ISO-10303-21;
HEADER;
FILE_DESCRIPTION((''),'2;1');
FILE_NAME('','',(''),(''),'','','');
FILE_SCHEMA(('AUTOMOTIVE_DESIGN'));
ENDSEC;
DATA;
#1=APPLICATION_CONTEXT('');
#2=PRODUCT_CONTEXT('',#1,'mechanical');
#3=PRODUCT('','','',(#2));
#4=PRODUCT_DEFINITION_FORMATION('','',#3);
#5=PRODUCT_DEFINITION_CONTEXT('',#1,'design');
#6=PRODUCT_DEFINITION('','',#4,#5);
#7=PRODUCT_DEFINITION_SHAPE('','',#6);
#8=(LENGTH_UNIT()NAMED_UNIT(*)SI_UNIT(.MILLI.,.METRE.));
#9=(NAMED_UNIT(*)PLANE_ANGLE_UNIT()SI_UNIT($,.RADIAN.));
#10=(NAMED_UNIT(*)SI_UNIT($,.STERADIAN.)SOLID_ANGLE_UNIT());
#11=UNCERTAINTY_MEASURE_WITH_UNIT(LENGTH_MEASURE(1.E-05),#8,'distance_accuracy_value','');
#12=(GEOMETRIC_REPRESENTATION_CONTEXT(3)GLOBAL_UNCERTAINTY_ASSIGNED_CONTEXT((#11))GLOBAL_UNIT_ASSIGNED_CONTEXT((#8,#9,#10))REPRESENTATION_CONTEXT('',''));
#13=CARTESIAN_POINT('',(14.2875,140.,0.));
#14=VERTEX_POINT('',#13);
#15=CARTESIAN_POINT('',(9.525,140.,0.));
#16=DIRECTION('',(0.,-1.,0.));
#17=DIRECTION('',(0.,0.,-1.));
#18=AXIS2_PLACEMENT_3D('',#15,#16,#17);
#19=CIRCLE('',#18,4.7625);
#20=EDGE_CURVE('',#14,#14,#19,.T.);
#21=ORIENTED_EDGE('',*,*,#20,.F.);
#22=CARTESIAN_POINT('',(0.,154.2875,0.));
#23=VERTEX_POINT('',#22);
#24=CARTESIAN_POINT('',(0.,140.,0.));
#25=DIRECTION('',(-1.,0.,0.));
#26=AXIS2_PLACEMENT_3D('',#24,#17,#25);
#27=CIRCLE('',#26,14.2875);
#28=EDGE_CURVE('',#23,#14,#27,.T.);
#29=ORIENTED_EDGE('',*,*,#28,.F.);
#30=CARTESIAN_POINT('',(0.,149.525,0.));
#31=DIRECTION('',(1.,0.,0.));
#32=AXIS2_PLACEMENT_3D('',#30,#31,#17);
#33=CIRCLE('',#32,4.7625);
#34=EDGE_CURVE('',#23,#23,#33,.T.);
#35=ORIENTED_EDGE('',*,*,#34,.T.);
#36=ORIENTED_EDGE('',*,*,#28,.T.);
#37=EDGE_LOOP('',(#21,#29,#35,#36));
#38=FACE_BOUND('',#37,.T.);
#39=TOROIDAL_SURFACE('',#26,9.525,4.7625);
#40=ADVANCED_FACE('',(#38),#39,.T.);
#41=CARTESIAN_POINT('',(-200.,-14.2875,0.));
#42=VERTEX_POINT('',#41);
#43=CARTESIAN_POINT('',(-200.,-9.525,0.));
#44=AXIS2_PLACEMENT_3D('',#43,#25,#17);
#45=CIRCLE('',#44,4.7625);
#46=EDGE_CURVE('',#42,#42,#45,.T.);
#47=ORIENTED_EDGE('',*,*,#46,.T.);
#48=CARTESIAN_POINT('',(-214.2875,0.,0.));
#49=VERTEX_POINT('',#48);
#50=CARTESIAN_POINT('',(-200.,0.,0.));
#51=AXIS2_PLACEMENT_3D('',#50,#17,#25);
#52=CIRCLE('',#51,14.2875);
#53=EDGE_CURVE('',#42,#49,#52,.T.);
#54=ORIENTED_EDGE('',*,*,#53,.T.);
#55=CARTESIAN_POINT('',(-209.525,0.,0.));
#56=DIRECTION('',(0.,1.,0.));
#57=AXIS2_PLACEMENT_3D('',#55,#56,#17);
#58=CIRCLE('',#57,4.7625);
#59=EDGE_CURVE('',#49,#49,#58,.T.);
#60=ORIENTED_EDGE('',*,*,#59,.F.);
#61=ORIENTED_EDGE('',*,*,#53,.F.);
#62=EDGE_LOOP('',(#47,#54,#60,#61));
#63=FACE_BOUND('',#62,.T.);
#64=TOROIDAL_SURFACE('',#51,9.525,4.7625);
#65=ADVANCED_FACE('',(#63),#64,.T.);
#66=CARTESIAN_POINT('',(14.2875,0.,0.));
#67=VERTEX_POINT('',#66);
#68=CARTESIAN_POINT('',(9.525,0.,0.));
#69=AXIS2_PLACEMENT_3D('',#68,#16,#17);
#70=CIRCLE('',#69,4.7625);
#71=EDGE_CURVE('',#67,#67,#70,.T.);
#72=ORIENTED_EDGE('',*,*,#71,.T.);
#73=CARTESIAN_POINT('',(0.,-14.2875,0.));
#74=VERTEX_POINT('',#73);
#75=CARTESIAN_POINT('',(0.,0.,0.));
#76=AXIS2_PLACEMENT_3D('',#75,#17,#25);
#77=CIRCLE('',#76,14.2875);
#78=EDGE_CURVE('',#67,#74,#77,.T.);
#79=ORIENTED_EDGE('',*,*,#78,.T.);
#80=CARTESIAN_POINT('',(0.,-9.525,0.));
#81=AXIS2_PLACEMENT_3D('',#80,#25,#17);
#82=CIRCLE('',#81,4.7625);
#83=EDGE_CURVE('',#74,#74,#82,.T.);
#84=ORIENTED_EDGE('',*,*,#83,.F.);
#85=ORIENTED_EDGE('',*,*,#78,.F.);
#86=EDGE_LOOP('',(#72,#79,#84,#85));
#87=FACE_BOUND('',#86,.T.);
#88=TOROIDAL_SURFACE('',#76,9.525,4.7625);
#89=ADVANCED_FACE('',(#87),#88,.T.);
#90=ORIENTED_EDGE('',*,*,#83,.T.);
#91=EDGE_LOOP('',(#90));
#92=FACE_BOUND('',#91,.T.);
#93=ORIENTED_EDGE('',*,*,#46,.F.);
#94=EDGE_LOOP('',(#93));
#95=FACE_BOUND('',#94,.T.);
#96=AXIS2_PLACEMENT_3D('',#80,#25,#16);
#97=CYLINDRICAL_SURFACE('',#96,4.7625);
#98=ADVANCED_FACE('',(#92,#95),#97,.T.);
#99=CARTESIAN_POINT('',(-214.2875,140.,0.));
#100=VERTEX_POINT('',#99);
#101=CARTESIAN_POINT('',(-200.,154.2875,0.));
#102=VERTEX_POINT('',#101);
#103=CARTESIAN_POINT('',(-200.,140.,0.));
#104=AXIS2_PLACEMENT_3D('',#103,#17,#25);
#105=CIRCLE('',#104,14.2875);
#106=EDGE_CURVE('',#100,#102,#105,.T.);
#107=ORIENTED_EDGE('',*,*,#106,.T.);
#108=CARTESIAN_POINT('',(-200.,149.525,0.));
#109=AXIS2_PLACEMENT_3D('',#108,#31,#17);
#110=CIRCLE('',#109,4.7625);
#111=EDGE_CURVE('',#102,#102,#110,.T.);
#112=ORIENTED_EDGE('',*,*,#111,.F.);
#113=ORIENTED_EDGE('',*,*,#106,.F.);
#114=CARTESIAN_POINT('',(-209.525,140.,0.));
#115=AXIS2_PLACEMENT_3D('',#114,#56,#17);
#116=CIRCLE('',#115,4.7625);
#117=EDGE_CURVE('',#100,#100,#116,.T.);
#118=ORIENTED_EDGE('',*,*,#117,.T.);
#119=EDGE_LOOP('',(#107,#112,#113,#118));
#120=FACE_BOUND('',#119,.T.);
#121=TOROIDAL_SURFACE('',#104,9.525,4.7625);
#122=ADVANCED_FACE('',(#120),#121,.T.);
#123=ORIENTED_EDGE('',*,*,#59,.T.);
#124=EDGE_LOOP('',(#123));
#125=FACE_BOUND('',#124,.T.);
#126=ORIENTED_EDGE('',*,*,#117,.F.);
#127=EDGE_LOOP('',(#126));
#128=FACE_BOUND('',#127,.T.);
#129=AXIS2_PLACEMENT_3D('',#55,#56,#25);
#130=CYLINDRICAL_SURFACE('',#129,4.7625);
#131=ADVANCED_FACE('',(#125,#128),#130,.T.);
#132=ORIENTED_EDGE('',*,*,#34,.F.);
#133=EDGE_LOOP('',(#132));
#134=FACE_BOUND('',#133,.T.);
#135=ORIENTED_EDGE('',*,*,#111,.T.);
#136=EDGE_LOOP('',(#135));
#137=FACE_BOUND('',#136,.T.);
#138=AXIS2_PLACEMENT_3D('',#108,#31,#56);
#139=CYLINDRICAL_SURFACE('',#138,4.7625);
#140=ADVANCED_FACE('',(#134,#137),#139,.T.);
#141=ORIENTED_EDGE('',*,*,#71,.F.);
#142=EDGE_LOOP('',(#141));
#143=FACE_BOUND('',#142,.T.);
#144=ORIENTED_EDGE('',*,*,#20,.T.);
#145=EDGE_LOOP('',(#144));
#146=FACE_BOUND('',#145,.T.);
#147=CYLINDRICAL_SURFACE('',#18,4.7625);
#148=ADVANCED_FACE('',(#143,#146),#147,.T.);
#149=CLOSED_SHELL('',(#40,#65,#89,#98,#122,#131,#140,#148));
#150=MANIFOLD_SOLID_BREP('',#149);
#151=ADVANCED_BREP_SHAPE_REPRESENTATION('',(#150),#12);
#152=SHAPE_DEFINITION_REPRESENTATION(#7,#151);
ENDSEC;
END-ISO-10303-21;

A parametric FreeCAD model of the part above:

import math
import FreeCAD as App
import Part
import Sketcher
Q = App.Units.Quantity

doc = App.newDocument("Part")
body = doc.addObject("PartDesign::Body", "Body")

sketch1 = body.newObject("Sketcher::SketchObject", "Sketch")
sketch1.AttachmentSupport = (doc.getObject("YZ_Plane"), [""])
sketch1.MapMode = "FlatFace"
sketch1.AttachmentOffset = App.Placement(App.Vector(0, 0, -200), App.Rotation())
sketch1.addGeometry(Part.Circle(App.Vector(149.5, 0, 0), App.Vector(0, 0, 1), 4.8), False)
sketch1.addConstraint([
    Sketcher.Constraint("PointOnObject", 0, 3, -1),
    Sketcher.Constraint("Diameter", 0, Q("9.525 mm")),
    Sketcher.Constraint("DistanceX", -1, 1, 0, 3, Q("149.525 mm")),
])

sketch2 = body.newObject("Sketcher::SketchObject", "Sketch001")
sketch2.AttachmentSupport = (doc.getObject("XY_Plane"), [""])
sketch2.MapMode = "FlatFace"
sketch2.addGeometry([
    Part.LineSegment(App.Vector(-200, 150, 0), App.Vector(0, 150, 0)),
    Part.ArcOfCircle(Part.Circle(App.Vector(0, 140, 0), App.Vector(0, 0, 1), 10), math.radians(0), math.radians(90)),
    Part.LineSegment(App.Vector(10, 140, 0), App.Vector(10, 0, 0)),
    Part.ArcOfCircle(Part.Circle(App.Vector(0, 0, 0), App.Vector(0, 0, 1), 10), math.radians(-90), math.radians(0)),
    Part.LineSegment(App.Vector(0, -10, 0), App.Vector(-200, -10, 0)),
    Part.ArcOfCircle(Part.Circle(App.Vector(-200, 0, 0), App.Vector(0, 0, 1), 10), math.radians(180), math.radians(270)),
    Part.LineSegment(App.Vector(-210, 0, 0), App.Vector(-210, 140, 0)),
    Part.ArcOfCircle(Part.Circle(App.Vector(-200, 140, 0), App.Vector(0, 0, 1), 10), math.radians(90), math.radians(180)),
], False)
sketch2.addConstraint([
    Sketcher.Constraint("Tangent", 0, 2, 1, 2),
    Sketcher.Constraint("Tangent", 1, 1, 2, 1),
    Sketcher.Constraint("Tangent", 2, 2, 3, 2),
    Sketcher.Constraint("Tangent", 3, 1, 4, 1),
    Sketcher.Constraint("Tangent", 4, 2, 5, 2),
    Sketcher.Constraint("Tangent", 5, 1, 6, 1),
    Sketcher.Constraint("Tangent", 6, 2, 7, 2),
    Sketcher.Constraint("Tangent", 7, 1, 0, 1),
    Sketcher.Constraint("Horizontal", 0),
    Sketcher.Constraint("Vertical", 2),
    Sketcher.Constraint("Horizontal", 4),
    Sketcher.Constraint("Vertical", 6),
    Sketcher.Constraint("Coincident", 3, 3, -1, 1),
    Sketcher.Constraint("Equal", 1, 3),
    Sketcher.Constraint("Equal", 3, 5),
    Sketcher.Constraint("Equal", 5, 7),
    Sketcher.Constraint("DistanceX", 0, 1, 0, 2, Q("200 mm")),
    Sketcher.Constraint("DistanceY", 2, 2, 2, 1, Q("140 mm")),
    Sketcher.Constraint("Radius", 1, Q("9.525 mm")),
])
doc.recompute()

additivepipe = body.newObject("PartDesign::AdditivePipe", "AdditivePipe")
additivepipe.Profile = sketch1
additivepipe.Spine = (sketch2, ["Edge1", "Edge2", "Edge3", "Edge4", "Edge5", "Edge6", "Edge7", "Edge8"])

doc.recompute()
